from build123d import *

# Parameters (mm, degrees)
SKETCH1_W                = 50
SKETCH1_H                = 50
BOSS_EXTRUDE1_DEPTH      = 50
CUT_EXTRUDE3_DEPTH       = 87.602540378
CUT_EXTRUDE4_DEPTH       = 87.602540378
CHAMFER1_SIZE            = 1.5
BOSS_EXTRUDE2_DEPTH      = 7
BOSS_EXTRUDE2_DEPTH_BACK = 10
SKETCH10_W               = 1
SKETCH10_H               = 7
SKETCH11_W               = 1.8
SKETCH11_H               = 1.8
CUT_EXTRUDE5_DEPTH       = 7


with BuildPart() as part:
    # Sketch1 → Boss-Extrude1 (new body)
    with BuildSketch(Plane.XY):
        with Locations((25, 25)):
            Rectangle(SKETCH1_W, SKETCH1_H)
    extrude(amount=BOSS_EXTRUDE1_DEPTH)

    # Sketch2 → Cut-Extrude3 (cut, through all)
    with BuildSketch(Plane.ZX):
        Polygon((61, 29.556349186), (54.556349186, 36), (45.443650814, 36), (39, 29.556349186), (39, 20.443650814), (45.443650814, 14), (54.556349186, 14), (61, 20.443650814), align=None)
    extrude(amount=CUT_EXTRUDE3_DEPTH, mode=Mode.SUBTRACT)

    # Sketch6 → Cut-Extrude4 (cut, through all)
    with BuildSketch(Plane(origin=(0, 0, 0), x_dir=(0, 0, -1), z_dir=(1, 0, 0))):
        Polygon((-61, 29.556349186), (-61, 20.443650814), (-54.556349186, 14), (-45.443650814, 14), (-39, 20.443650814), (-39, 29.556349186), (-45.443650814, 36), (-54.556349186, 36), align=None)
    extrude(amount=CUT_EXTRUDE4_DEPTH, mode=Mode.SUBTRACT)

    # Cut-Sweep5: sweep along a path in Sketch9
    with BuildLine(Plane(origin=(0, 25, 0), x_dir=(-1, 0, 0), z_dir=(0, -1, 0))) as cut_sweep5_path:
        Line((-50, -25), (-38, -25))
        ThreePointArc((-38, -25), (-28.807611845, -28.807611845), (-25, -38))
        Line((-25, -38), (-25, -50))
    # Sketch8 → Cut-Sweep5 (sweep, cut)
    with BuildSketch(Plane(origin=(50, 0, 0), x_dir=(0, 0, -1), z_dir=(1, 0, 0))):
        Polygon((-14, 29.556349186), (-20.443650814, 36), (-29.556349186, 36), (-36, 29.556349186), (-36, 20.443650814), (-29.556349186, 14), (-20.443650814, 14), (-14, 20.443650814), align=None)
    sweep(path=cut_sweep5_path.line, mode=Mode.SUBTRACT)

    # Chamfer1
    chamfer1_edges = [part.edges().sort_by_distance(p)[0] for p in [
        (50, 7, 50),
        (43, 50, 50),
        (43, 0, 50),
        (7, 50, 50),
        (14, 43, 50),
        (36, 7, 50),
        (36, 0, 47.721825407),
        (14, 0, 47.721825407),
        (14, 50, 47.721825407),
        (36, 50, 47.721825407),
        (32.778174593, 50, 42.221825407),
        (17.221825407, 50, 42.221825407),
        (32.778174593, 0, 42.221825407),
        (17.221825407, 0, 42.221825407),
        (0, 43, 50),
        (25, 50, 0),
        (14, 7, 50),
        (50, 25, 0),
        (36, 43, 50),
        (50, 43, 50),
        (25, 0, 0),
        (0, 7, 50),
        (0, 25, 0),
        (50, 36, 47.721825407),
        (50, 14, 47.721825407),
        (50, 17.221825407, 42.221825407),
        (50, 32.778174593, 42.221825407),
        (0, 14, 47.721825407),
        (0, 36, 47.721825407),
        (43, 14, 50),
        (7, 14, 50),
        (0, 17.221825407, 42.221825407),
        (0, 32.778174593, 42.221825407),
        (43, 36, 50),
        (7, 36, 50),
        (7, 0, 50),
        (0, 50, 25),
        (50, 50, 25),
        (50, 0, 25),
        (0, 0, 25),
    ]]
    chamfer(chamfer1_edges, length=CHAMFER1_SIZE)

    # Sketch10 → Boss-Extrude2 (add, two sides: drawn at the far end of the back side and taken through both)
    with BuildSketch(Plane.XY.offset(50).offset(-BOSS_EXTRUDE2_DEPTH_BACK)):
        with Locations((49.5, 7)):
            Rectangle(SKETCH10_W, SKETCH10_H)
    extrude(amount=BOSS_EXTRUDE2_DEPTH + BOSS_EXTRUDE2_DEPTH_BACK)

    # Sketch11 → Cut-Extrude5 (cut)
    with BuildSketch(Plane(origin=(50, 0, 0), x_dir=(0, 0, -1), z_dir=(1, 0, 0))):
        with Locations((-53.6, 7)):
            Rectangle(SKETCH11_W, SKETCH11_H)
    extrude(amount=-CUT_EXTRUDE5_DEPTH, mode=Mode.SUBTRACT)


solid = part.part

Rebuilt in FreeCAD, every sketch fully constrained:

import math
import FreeCAD as App
import Part
import Sketcher
Q = App.Units.Quantity


def edges_at(feature, points):
    """Names of the edges that pass closest to the given points."""
    edges = feature.Shape.Edges
    near = lambda p: min(range(len(edges)), key=lambda i: edges[i].distToShape(Part.Vertex(*p))[0])
    return sorted({f"Edge{near(p) + 1}" for p in points})


def add_polygon(sketch, points):
    """Adds a closed chain of lines whose ends are joined by coincident constraints."""
    first, n = sketch.GeometryCount, len(points)
    for a, b in zip(points, points[1:] + points[:1]):
        sketch.addGeometry(Part.LineSegment(App.Vector(*a, 0), App.Vector(*b, 0)), False)
    for i in range(n):
        sketch.addConstraint(Sketcher.Constraint("Coincident", first + i, 2, first + (i + 1) % n, 1))

doc = App.newDocument("Part")
body = doc.addObject("PartDesign::Body", "Body")

sketch1 = body.newObject("Sketcher::SketchObject", "Sketch")
sketch1.AttachmentSupport = (doc.getObject("XY_Plane"), [""])
sketch1.MapMode = "FlatFace"
add_polygon(sketch1, [(0, 50), (0, 0), (50, 0), (50, 50)])
sketch1.addConstraint([
    Sketcher.Constraint("Vertical", 0),
    Sketcher.Constraint("Horizontal", 1),
    Sketcher.Constraint("Vertical", 2),
    Sketcher.Constraint("Horizontal", 3),
    Sketcher.Constraint("Coincident", 0, 2, -1, 1),
    Sketcher.Constraint("Equal", 3, 0),
    Sketcher.Constraint("DistanceX", 1, 1, 1, 2, Q("50 mm")),
])
pad1 = body.newObject("PartDesign::Pad", "Pad")
pad1.Profile = sketch1
pad1.Length = 50

sketch2 = body.newObject("Sketcher::SketchObject", "Sketch001")
sketch2.AttachmentSupport = (doc.getObject("XZ_Plane"), [""])
sketch2.MapMode = "FlatFace"
add_polygon(sketch2, [(30, 61), (36, 55), (36, 45), (30, 39), (20, 39), (14, 45), (14, 55), (20, 61)])
sketch2.addConstraint([
    Sketcher.Constraint("Vertical", 1),
    Sketcher.Constraint("Horizontal", 3),
    Sketcher.Constraint("Vertical", 5),
    Sketcher.Constraint("Horizontal", 7),
    Sketcher.Constraint("Perpendicular", 0, 2),
    Sketcher.Constraint("Perpendicular", 2, 4),
    Sketcher.Constraint("Perpendicular", 4, 6),
    Sketcher.Constraint("Horizontal", 1, 2, 4, 2),
    Sketcher.Constraint("Horizontal", 0, 2, 5, 2),
    Sketcher.Constraint("Vertical", 3, 2, 6, 2),
    Sketcher.Constraint("Vertical", 2, 2, 7, 2),
    Sketcher.Constraint("Equal", 7, 1),
    Sketcher.Constraint("DistanceX", -1, 1, 0, 2, Q("36 mm")),
    Sketcher.Constraint("DistanceY", -1, 1, 2, 2, Q("39 mm")),
    Sketcher.Constraint("DistanceX", -1, 1, 4, 2, Q("14 mm")),
    Sketcher.Constraint("DistanceX", 3, 2, 3, 1, Q("9.112698 mm")),
])
pocket1 = body.newObject("PartDesign::Pocket", "Pocket")
pocket1.Profile = sketch2
pocket1.Type = "ThroughAll"

sketch3 = body.newObject("Sketcher::SketchObject", "Sketch002")
sketch3.AttachmentSupport = (doc.getObject("YZ_Plane"), [""])
sketch3.MapMode = "FlatFace"
add_polygon(sketch3, [(30, 61), (20, 61), (14, 55), (14, 45), (20, 39), (30, 39), (36, 45), (36, 55)])
sketch3.addConstraint([
    Sketcher.Constraint("Horizontal", 0),
    Sketcher.Constraint("Vertical", 2),
    Sketcher.Constraint("Horizontal", 4),
    Sketcher.Constraint("Vertical", 6),
    Sketcher.Constraint("Perpendicular", 1, 3),
    Sketcher.Constraint("Perpendicular", 3, 5),
    Sketcher.Constraint("Perpendicular", 5, 7),
    Sketcher.Constraint("Horizontal", 2, 2, 5, 2),
    Sketcher.Constraint("Horizontal", 1, 2, 6, 2),
    Sketcher.Constraint("Vertical", 0, 2, 3, 2),
    Sketcher.Constraint("Vertical", 4, 2, 7, 2),
    Sketcher.Constraint("Equal", 4, 2),
    Sketcher.Constraint("DistanceY", -1, 1, 0, 2, Q("61 mm")),
    Sketcher.Constraint("DistanceX", -1, 1, 1, 2, Q("14 mm")),
    Sketcher.Constraint("DistanceY", -1, 1, 3, 2, Q("39 mm")),
    Sketcher.Constraint("DistanceX", 0, 2, 0, 1, Q("9.112698 mm")),
])
pocket2 = body.newObject("PartDesign::Pocket", "Pocket001")
pocket2.Profile = sketch3
pocket2.Type = "ThroughAll"
pocket2.Reversed = True

sketch4 = body.newObject("Sketcher::SketchObject", "Sketch003")
sketch4.AttachmentSupport = (doc.getObject("YZ_Plane"), [""])
sketch4.MapMode = "FlatFace"
sketch4.AttachmentOffset = App.Placement(App.Vector(0, 0, 50), App.Rotation())
add_polygon(sketch4, [(30, 14), (36, 20), (36, 30), (30, 36), (20, 36), (14, 30), (14, 20), (20, 14)])
sketch4.addConstraint([
    Sketcher.Constraint("Vertical", 1),
    Sketcher.Constraint("Horizontal", 3),
    Sketcher.Constraint("Vertical", 5),
    Sketcher.Constraint("Horizontal", 7),
    Sketcher.Constraint("Perpendicular", 0, 2),
    Sketcher.Constraint("Perpendicular", 2, 4),
    Sketcher.Constraint("Perpendicular", 4, 6),
    Sketcher.Constraint("Horizontal", 1, 2, 4, 2),
    Sketcher.Constraint("Horizontal", 0, 2, 5, 2),
    Sketcher.Constraint("Vertical", 3, 2, 6, 2),
    Sketcher.Constraint("Vertical", 2, 2, 7, 2),
    Sketcher.Constraint("Equal", 7, 1),
    Sketcher.Constraint("DistanceX", -1, 1, 0, 2, Q("36 mm")),
    Sketcher.Constraint("DistanceY", -1, 1, 2, 2, Q("36 mm")),
    Sketcher.Constraint("DistanceX", -1, 1, 4, 2, Q("14 mm")),
    Sketcher.Constraint("DistanceX", 3, 2, 3, 1, Q("9.112698 mm")),
])

sketch5 = body.newObject("Sketcher::SketchObject", "Sketch004")
sketch5.AttachmentSupport = (doc.getObject("XZ_Plane"), [""])
sketch5.MapMode = "FlatFace"
sketch5.AttachmentOffset = App.Placement(App.Vector(0, 0, -25), App.Rotation())
sketch5.addGeometry([
    Part.LineSegment(App.Vector(50, 25, 0), App.Vector(38, 25, 0)),
    Part.ArcOfCircle(Part.Circle(App.Vector(38, 38, 0), App.Vector(0, 0, 1), 13), math.radians(-180), math.radians(-90)),
    Part.LineSegment(App.Vector(25, 38, 0), App.Vector(25, 50, 0)),
], False)
sketch5.addConstraint([
    Sketcher.Constraint("Tangent", 0, 2, 1, 2),
    Sketcher.Constraint("Tangent", 1, 1, 2, 1),
    Sketcher.Constraint("Horizontal", 0),
    Sketcher.Constraint("Vertical", 2),
    Sketcher.Constraint("Equal", 0, 2),
    Sketcher.Constraint("Radius", 1, Q("13 mm")),
    Sketcher.Constraint("DistanceX", 0, 2, 0, 1, Q("12 mm")),
    Sketcher.Constraint("DistanceX", -1, 1, 1, 3, Q("38 mm")),
    Sketcher.Constraint("DistanceY", -1, 1, 1, 3, Q("38 mm")),
])
doc.recompute()

subtractivepipe = body.newObject("PartDesign::SubtractivePipe", "SubtractivePipe")
subtractivepipe.Profile = sketch4
subtractivepipe.Spine = (sketch5, ["Edge1", "Edge2", "Edge3"])
doc.recompute()

chamfer = body.newObject("PartDesign::Chamfer", "Chamfer")
chamfer.Base = (subtractivepipe, edges_at(subtractivepipe, [
    (50, 7, 50),
    (43, 50, 50),
    (43, 0, 50),
    (7, 50, 50),
    (14, 43, 50),
    (36, 7, 50),
    (36, 0, 47.722),
    (14, 0, 47.722),
    (14, 50, 47.722),
    (36, 50, 47.722),
    (32.778, 50, 42.222),
    (17.222, 50, 42.222),
    (32.778, 0, 42.222),
    (17.222, 0, 42.222),
    (0, 43, 50),
    (25, 50, 0),
    (14, 7, 50),
    (50, 25, 0),
    (36, 43, 50),
    (50, 43, 50),
    (25, 0, 0),
    (0, 7, 50),
    (0, 25, 0),
    (50, 36, 47.722),
    (50, 14, 47.722),
    (50, 17.222, 42.222),
    (50, 32.778, 42.222),
    (0, 14, 47.722),
    (0, 36, 47.722),
    (43, 14, 50),
    (7, 14, 50),
    (0, 17.222, 42.222),
    (0, 32.778, 42.222),
    (43, 36, 50),
    (7, 36, 50),
    (7, 0, 50),
    (0, 50, 25),
    (50, 50, 25),
    (50, 0, 25),
    (0, 0, 25),
]))
chamfer.Size = 1.5

sketch6 = body.newObject("Sketcher::SketchObject", "Sketch005")
sketch6.AttachmentSupport = (doc.getObject("XY_Plane"), [""])
sketch6.MapMode = "FlatFace"
sketch6.AttachmentOffset = App.Placement(App.Vector(0, 0, 50), App.Rotation())
add_polygon(sketch6, [(49, 10.5), (49, 3.5), (50, 3.5), (50, 10.5)])
sketch6.addConstraint([
    Sketcher.Constraint("Vertical", 0),
    Sketcher.Constraint("Horizontal", 1),
    Sketcher.Constraint("Vertical", 2),
    Sketcher.Constraint("Horizontal", 3),
    Sketcher.Constraint("DistanceX", 1, 1, 1, 2, Q("1 mm")),
    Sketcher.Constraint("DistanceY", 0, 2, 0, 1, Q("7 mm")),
    Sketcher.Constraint("DistanceX", -1, 1, 0, 2, Q("49 mm")),
    Sketcher.Constraint("DistanceY", -1, 1, 0, 2, Q("3.5 mm")),
])
pad2 = body.newObject("PartDesign::Pad", "Pad001")
pad2.Profile = sketch6
pad2.Type = "TwoLengths"
pad2.Length = 7
pad2.Length2 = 10

sketch7 = body.newObject("Sketcher::SketchObject", "Sketch006")
sketch7.AttachmentSupport = (doc.getObject("YZ_Plane"), [""])
sketch7.MapMode = "FlatFace"
sketch7.AttachmentOffset = App.Placement(App.Vector(0, 0, 50), App.Rotation())
add_polygon(sketch7, [(7.9, 54.5), (6.1, 54.5), (6.1, 52.7), (7.9, 52.7)])
sketch7.addConstraint([
    Sketcher.Constraint("Horizontal", 0),
    Sketcher.Constraint("Vertical", 1),
    Sketcher.Constraint("Horizontal", 2),
    Sketcher.Constraint("Vertical", 3),
    Sketcher.Constraint("Equal", 2, 1),
    Sketcher.Constraint("DistanceX", 0, 2, 0, 1, Q("1.8 mm")),
    Sketcher.Constraint("DistanceX", -1, 1, 0, 2, Q("6.1 mm")),
    Sketcher.Constraint("DistanceY", -1, 1, 0, 2, Q("54.5 mm")),
])
pocket3 = body.newObject("PartDesign::Pocket", "Pocket002")
pocket3.Profile = sketch7
pocket3.Length = 7

doc.recompute()
